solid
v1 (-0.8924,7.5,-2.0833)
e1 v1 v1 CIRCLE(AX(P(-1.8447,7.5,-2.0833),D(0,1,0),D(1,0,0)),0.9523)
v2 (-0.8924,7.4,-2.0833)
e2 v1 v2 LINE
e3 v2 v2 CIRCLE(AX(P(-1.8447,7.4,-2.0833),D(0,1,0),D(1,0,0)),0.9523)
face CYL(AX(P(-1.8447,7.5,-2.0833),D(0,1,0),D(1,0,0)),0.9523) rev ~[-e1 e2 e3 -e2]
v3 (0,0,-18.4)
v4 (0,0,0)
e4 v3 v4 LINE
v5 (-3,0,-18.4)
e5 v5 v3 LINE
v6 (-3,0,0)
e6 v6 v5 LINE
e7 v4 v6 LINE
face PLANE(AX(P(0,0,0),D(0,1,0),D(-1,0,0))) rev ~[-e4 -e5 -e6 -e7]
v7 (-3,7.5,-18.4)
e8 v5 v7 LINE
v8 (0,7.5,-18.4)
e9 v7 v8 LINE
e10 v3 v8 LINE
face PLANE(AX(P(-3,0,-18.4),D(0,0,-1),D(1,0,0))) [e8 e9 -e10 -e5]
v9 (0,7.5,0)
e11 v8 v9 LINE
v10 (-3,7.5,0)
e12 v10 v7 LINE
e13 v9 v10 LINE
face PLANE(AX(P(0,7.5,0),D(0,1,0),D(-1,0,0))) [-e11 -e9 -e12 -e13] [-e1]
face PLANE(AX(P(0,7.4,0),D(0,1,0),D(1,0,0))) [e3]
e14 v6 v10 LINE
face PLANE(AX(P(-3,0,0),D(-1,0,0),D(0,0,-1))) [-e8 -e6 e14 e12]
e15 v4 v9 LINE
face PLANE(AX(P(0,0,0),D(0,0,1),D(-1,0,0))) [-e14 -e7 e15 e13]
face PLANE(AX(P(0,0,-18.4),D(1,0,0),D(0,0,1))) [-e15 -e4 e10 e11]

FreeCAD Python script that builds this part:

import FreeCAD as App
import Part
import Sketcher

V = App.Vector
Q = App.Units.Quantity

doc = App.newDocument("Part")
body = doc.addObject("PartDesign::Body", "Body")

# Sketch on XZ plane
sketch1 = body.newObject("Sketcher::SketchObject", "Sketch")
sketch1.AttachmentSupport = (doc.getObject("XZ_Plane"), [""])
sketch1.MapMode = "FlatFace"
sketch1.addGeometry([
    Part.LineSegment(V(-3, 0, 0), V(0, 0, 0)),
    Part.LineSegment(V(0, 0, 0), V(0, -18.4, 0)),
    Part.LineSegment(V(0, -18.4, 0), V(-3, -18.4, 0)),
    Part.LineSegment(V(-3, -18.4, 0), V(-3, 0, 0)),
], False)
sketch1.addConstraint([
    Sketcher.Constraint("Coincident", 0, 2, 1, 1),
    Sketcher.Constraint("Coincident", 1, 2, 2, 1),
    Sketcher.Constraint("Coincident", 2, 2, 3, 1),
    Sketcher.Constraint("Coincident", 3, 2, 0, 1),
    Sketcher.Constraint("Horizontal", 0),
    Sketcher.Constraint("Vertical", 1),
    Sketcher.Constraint("Horizontal", 2),
    Sketcher.Constraint("Vertical", 3),
    Sketcher.Constraint("Coincident", 0, 2, -1, 1),
    Sketcher.Constraint("DistanceX", 0, 1, 0, 2, Q("3 mm")),
    Sketcher.Constraint("DistanceY", 1, 2, 1, 1, Q("18.4 mm")),
])
pad1 = body.newObject("PartDesign::Pad", "Pad")
pad1.Profile = sketch1
pad1.Length = 7.5
pad1.Reversed = True

# Sketch on XZ plane
sketch2 = body.newObject("Sketcher::SketchObject", "Sketch001")
sketch2.AttachmentSupport = (doc.getObject("XZ_Plane"), [""])
sketch2.MapMode = "FlatFace"
sketch2.AttachmentOffset = App.Placement(V(0, 0, -7.5), App.Rotation())
sketch2.addGeometry(Part.Circle(V(-1.8, -2.1, 0), V(0, 0, 1), 1), False)
sketch2.addConstraint([
    Sketcher.Constraint("Diameter", 0, Q("1.9046 mm")),
    Sketcher.Constraint("DistanceX", 0, 3, -1, 1, Q("1.8447 mm")),
    Sketcher.Constraint("DistanceY", 0, 3, -1, 1, Q("2.0833 mm")),
])
pocket1 = body.newObject("PartDesign::Pocket", "Pocket")
pocket1.Profile = sketch2
pocket1.Length = 0.1
pocket1.Reversed = True

doc.recompute()
